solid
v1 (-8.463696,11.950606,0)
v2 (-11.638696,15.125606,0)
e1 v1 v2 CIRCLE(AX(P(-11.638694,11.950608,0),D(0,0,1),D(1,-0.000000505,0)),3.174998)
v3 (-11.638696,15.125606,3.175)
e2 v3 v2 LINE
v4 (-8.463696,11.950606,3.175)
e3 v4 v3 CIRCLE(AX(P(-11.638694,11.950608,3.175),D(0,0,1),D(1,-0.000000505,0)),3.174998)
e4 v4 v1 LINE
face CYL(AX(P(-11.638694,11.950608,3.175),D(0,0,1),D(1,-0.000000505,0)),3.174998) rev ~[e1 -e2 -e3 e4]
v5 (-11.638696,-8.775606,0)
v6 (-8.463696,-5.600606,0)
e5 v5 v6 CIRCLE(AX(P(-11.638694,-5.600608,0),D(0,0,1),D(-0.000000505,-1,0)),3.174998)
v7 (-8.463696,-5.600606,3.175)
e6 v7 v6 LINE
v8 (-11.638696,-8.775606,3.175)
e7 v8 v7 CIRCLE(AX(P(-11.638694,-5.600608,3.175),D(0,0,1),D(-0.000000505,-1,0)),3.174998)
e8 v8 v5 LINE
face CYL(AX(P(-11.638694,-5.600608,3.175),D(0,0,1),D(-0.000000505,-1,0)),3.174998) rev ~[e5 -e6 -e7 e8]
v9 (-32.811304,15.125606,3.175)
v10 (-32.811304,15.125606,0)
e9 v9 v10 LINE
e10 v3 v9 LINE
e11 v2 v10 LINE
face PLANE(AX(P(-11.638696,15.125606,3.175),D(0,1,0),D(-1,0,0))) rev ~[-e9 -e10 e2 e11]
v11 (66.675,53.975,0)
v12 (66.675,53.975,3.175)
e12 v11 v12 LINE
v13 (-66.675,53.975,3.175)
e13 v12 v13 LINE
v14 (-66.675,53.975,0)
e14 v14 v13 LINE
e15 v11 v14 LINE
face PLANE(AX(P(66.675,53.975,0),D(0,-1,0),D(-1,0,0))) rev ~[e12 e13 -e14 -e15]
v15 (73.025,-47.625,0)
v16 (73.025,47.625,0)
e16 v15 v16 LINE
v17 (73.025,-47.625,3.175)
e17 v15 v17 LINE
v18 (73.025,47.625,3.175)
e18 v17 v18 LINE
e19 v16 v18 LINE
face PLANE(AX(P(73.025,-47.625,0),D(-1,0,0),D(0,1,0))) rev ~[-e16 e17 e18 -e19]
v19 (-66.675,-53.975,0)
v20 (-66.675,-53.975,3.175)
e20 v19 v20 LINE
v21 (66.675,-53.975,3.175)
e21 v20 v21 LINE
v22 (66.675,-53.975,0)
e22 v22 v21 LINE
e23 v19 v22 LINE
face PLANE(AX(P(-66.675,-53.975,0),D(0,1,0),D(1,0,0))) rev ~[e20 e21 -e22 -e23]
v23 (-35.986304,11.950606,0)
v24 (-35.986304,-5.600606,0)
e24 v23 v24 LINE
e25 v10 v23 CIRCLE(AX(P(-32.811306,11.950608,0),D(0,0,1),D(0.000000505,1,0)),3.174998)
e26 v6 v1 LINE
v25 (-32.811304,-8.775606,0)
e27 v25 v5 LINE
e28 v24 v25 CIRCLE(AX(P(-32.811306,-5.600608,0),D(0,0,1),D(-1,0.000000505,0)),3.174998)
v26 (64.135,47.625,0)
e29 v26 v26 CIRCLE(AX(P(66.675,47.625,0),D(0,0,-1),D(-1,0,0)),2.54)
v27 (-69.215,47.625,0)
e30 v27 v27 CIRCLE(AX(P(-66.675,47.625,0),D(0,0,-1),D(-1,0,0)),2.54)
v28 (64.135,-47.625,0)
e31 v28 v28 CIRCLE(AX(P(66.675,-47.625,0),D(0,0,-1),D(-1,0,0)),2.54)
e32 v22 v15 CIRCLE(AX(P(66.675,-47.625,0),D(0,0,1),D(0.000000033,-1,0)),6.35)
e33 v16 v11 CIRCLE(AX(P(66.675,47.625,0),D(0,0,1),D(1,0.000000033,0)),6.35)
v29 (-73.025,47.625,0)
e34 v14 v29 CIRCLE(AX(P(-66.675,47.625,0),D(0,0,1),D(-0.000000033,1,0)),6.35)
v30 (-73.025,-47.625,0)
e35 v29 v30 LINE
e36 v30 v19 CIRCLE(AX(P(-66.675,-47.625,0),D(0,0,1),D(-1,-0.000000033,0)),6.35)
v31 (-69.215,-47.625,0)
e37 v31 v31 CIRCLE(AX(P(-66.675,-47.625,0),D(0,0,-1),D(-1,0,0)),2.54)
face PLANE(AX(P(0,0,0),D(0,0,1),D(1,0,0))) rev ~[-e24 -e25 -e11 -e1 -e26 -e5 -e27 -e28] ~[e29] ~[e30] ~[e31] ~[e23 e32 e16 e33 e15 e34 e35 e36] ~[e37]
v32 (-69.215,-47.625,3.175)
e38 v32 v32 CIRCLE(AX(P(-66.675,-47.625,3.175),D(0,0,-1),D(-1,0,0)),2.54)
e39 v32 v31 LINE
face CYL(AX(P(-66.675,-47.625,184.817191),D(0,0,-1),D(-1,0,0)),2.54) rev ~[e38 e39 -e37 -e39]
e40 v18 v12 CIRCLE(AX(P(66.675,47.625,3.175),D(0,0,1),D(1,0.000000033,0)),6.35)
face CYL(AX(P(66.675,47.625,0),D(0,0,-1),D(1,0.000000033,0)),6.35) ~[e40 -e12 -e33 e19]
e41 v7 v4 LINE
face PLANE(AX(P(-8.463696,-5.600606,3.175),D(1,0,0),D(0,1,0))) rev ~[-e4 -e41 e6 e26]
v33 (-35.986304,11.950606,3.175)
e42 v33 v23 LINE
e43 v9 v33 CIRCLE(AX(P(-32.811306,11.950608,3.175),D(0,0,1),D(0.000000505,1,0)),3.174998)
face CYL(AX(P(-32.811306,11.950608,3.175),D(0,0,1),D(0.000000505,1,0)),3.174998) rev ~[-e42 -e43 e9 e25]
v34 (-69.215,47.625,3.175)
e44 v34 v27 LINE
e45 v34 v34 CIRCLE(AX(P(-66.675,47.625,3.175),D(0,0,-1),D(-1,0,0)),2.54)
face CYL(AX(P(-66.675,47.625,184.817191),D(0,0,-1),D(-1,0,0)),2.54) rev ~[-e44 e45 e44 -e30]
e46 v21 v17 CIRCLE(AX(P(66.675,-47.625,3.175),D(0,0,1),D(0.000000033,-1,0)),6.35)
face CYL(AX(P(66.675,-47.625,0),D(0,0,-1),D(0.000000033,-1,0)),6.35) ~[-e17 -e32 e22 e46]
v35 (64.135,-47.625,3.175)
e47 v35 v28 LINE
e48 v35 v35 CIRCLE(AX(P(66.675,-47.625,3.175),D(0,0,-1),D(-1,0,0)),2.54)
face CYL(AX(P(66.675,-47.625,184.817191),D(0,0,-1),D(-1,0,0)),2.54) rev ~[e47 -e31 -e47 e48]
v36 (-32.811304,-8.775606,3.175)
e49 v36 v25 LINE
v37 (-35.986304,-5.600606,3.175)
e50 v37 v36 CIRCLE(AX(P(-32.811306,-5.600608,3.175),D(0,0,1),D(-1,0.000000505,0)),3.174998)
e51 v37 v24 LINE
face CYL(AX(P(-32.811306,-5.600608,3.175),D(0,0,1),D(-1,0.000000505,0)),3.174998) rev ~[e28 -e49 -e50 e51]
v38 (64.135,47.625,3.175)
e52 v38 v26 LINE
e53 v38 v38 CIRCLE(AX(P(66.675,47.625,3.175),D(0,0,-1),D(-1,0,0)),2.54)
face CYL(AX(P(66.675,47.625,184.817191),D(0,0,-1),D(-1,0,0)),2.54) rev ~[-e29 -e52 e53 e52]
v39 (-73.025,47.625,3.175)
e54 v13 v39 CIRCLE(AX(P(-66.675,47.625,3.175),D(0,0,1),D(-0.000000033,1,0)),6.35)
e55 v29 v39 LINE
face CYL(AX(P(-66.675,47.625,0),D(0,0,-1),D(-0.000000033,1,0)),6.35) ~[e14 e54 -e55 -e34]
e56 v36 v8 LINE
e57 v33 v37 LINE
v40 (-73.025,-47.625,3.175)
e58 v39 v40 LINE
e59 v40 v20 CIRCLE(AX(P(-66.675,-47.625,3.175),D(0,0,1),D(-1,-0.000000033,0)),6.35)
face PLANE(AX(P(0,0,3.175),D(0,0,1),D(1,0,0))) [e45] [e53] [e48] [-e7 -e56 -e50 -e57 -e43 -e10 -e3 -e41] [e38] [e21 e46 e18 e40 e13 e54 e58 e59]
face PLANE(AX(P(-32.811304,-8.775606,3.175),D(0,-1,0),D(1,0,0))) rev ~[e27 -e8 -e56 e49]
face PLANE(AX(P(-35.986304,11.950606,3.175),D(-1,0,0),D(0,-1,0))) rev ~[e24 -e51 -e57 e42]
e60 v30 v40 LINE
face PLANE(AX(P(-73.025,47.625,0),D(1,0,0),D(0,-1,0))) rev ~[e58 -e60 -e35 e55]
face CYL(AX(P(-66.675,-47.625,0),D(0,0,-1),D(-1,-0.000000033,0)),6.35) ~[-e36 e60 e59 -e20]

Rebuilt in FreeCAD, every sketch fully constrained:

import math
import FreeCAD as App
import Part
import Sketcher

V = App.Vector
Q = App.Units.Quantity

doc = App.newDocument("Part")
body = doc.addObject("PartDesign::Body", "Body")

sketch1 = body.newObject("Sketcher::SketchObject", "Sketch")
sketch1.AttachmentSupport = (doc.getObject("XY_Plane"), [""])
sketch1.MapMode = "FlatFace"
sketch1.addGeometry([
    Part.ArcOfCircle(Part.Circle(V(67, 48, 0), V(0, 0, 1), 6), math.radians(0), math.radians(90)),
    Part.LineSegment(V(67, 54, 0), V(-67, 54, 0)),
    Part.ArcOfCircle(Part.Circle(V(-67, 48, 0), V(0, 0, 1), 6), math.radians(90), math.radians(180)),
    Part.LineSegment(V(-73, 48, 0), V(-73, -48, 0)),
    Part.ArcOfCircle(Part.Circle(V(-67, -48, 0), V(0, 0, 1), 6), math.radians(-180), math.radians(-90)),
    Part.LineSegment(V(-67, -54, 0), V(67, -54, 0)),
    Part.ArcOfCircle(Part.Circle(V(67, -48, 0), V(0, 0, 1), 6), math.radians(-90), math.radians(0)),
    Part.LineSegment(V(73, -48, 0), V(73, 48, 0)),
], False)
sketch1.addConstraint([
    Sketcher.Constraint("Tangent", 0, 2, 1, 1),
    Sketcher.Constraint("Tangent", 1, 2, 2, 1),
    Sketcher.Constraint("Tangent", 2, 2, 3, 1),
    Sketcher.Constraint("Tangent", 3, 2, 4, 1),
    Sketcher.Constraint("Tangent", 4, 2, 5, 1),
    Sketcher.Constraint("Tangent", 5, 2, 6, 1),
    Sketcher.Constraint("Tangent", 6, 2, 7, 1),
    Sketcher.Constraint("Tangent", 7, 2, 0, 1),
    Sketcher.Constraint("Horizontal", 1),
    Sketcher.Constraint("Vertical", 3),
    Sketcher.Constraint("Horizontal", 5),
    Sketcher.Constraint("Vertical", 7),
    Sketcher.Constraint("Equal", 0, 2),
    Sketcher.Constraint("Equal", 2, 4),
    Sketcher.Constraint("Equal", 4, 6),
    Sketcher.Constraint("Symmetric", 0, 3, 4, 3, -1, 1),
    Sketcher.Constraint("Radius", 0, Q("0.25 in")),
    Sketcher.Constraint("DistanceY", 6, 3, 0, 2, Q("4 in")),
    Sketcher.Constraint("DistanceX", 1, 2, 1, 1, Q("5.25 in")),
])
pad1 = body.newObject("PartDesign::Pad", "Pad")
pad1.Profile = sketch1
pad1.Length = Q("0.125 in")

sketch2 = body.newObject("Sketcher::SketchObject", "Sketch001")
sketch2.AttachmentSupport = (doc.getObject("XY_Plane"), [""])
sketch2.MapMode = "FlatFace"
sketch2.AttachmentOffset = App.Placement(V(0, 0, 0.125 * 25.4), App.Rotation())
sketch2.addGeometry([
    Part.Circle(V(-66.7, 47.6, 0), V(0, 0, 1), 2.5),
    Part.Circle(V(66.7, 47.6, 0), V(0, 0, 1), 2.5),
    Part.Circle(V(66.7, -47.6, 0), V(0, 0, 1), 2.5),
    Part.Circle(V(-66.7, -47.6, 0), V(0, 0, 1), 2.5),
], False)
sketch2.addConstraint([
    Sketcher.Constraint("Equal", 0, 1),
    Sketcher.Constraint("Equal", 1, 2),
    Sketcher.Constraint("Equal", 2, 3),
    Sketcher.Constraint("Symmetric", 0, 3, 2, 3, -1, 1),
    Sketcher.Constraint("Symmetric", 1, 3, 3, 3, -1, 1),
    Sketcher.Constraint("Symmetric", 0, 3, 1, 3, -2),
    Sketcher.Constraint("Diameter", 0, Q("0.2 in")),
    Sketcher.Constraint("DistanceX", 0, 3, 1, 3, Q("5.25 in")),
    Sketcher.Constraint("DistanceY", 2, 3, 1, 3, Q("3.75 in")),
])
doc.recompute()
hole = body.newObject("PartDesign::Hole", "Hole")
hole.Profile = sketch2
hole.ThreadType = "None"
hole.Diameter = Q("0.2 in")
hole.DepthType = "ThroughAll"

sketch3 = body.newObject("Sketcher::SketchObject", "Sketch002")
sketch3.AttachmentSupport = (doc.getObject("XY_Plane"), [""])
sketch3.MapMode = "FlatFace"
sketch3.AttachmentOffset = App.Placement(V(0, 0, 0.125 * 25.4), App.Rotation())
sketch3.addGeometry([
    Part.LineSegment(V(-32.8, -8.8, 0), V(-11.6, -8.8, 0)),
    Part.ArcOfCircle(Part.Circle(V(-11.6, -5.6, 0), V(0, 0, 1), 3.2), math.radians(-90), math.radians(0)),
    Part.LineSegment(V(-8.5, -5.6, 0), V(-8.5, 12, 0)),
    Part.ArcOfCircle(Part.Circle(V(-11.6, 12, 0), V(0, 0, 1), 3.2), math.radians(0), math.radians(90)),
    Part.LineSegment(V(-11.6, 15.1, 0), V(-32.8, 15.1, 0)),
    Part.ArcOfCircle(Part.Circle(V(-32.8, 12, 0), V(0, 0, 1), 3.2), math.radians(90), math.radians(180)),
    Part.LineSegment(V(-36, 12, 0), V(-36, -5.6, 0)),
    Part.ArcOfCircle(Part.Circle(V(-32.8, -5.6, 0), V(0, 0, 1), 3.2), math.radians(180), math.radians(270)),
], False)
sketch3.addConstraint([
    Sketcher.Constraint("Tangent", 0, 2, 1, 1),
    Sketcher.Constraint("Tangent", 1, 2, 2, 1),
    Sketcher.Constraint("Tangent", 2, 2, 3, 1),
    Sketcher.Constraint("Tangent", 3, 2, 4, 1),
    Sketcher.Constraint("Tangent", 4, 2, 5, 1),
    Sketcher.Constraint("Tangent", 5, 2, 6, 1),
    Sketcher.Constraint("Tangent", 6, 2, 7, 1),
    Sketcher.Constraint("Tangent", 7, 2, 0, 1),
    Sketcher.Constraint("Horizontal", 0),
    Sketcher.Constraint("Vertical", 2),
    Sketcher.Constraint("Horizontal", 4),
    Sketcher.Constraint("Vertical", 6),
    Sketcher.Constraint("Equal", 1, 3),
    Sketcher.Constraint("Equal", 3, 5),
    Sketcher.Constraint("Equal", 5, 7),
    Sketcher.Constraint("Radius", 1, Q("0.1249999 in")),
    Sketcher.Constraint("DistanceX", 0, 1, 0, 2, Q("21.172608 mm")),
    Sketcher.Constraint("DistanceY", 2, 1, 2, 2, Q("17.551212 mm")),
    Sketcher.Constraint("DistanceX", 1, 3, -1, 1, Q("11.638694 mm")),
    Sketcher.Constraint("DistanceY", 1, 3, -1, 1, Q("5.600608 mm")),
])
pocket1 = body.newObject("PartDesign::Pocket", "Pocket")
pocket1.Profile = sketch3
pocket1.Type = "ThroughAll"

doc.recompute()
